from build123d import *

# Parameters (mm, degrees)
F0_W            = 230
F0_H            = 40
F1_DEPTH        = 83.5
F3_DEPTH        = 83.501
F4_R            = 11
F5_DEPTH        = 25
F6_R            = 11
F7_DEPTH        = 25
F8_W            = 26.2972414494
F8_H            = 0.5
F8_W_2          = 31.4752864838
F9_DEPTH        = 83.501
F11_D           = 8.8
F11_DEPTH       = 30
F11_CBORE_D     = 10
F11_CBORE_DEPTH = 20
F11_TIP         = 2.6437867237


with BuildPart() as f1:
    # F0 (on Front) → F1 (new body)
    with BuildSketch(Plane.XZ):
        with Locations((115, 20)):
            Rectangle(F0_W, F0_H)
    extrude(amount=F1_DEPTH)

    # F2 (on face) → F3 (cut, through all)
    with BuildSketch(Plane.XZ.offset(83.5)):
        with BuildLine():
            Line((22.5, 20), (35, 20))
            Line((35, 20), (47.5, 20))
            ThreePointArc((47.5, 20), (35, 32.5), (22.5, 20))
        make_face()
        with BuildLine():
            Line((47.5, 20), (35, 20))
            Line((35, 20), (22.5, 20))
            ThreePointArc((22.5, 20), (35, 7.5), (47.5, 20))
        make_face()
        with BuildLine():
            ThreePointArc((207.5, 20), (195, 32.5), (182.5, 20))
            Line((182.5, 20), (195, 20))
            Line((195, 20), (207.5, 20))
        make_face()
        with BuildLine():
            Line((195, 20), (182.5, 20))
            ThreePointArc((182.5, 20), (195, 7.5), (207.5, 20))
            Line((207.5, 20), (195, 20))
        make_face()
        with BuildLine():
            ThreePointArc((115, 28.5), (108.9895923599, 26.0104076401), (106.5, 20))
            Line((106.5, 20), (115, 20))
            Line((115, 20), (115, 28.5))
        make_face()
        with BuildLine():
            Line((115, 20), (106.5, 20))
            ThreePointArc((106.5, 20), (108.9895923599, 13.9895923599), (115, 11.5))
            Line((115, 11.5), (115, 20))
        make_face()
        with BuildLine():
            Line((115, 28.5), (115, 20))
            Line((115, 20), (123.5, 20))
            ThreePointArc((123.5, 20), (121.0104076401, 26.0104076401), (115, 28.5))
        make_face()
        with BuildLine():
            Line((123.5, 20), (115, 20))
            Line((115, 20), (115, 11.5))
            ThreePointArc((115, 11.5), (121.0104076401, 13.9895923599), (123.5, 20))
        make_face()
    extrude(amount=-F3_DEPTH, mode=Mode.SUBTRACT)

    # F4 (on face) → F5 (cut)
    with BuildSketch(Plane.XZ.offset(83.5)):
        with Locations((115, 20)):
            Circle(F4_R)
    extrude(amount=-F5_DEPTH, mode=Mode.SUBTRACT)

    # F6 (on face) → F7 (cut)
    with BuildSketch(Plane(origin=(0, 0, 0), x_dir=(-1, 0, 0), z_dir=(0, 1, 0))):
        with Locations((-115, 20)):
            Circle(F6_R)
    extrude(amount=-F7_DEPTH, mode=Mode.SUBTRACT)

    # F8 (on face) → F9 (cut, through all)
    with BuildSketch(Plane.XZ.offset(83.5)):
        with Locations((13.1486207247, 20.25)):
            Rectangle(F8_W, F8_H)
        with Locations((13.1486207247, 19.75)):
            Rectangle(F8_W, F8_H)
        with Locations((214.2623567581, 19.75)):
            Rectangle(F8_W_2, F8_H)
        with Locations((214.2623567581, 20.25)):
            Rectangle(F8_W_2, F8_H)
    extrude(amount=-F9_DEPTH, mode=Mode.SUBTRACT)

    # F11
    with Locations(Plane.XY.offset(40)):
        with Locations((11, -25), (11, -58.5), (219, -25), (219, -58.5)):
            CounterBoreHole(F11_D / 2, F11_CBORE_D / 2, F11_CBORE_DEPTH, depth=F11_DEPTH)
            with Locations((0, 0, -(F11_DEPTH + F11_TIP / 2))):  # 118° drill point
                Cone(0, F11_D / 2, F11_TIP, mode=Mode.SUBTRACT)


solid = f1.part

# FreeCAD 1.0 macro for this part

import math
import FreeCAD as App
import Part
import Sketcher

V = App.Vector
Q = App.Units.Quantity

doc = App.newDocument("Part")
body = doc.addObject("PartDesign::Body", "Body")

# Sketch on XZ plane
sketch1 = body.newObject("Sketcher::SketchObject", "Sketch")
sketch1.AttachmentSupport = (doc.getObject("XZ_Plane"), [""])
sketch1.MapMode = "FlatFace"
sketch1.addGeometry(Part.LineSegment(V(0, 40, 0), V(0, 0, 0)), False)
sketch1.addGeometry(Part.LineSegment(V(0, 0, 0), V(230, 0, 0)), False)
sketch1.addGeometry(Part.LineSegment(V(230, 0, 0), V(230, 40, 0)), False)
sketch1.addGeometry(Part.LineSegment(V(230, 40, 0), V(0, 40, 0)), False)
sketch1.addConstraint(Sketcher.Constraint("Coincident", 0, 2, 1, 1))
sketch1.addConstraint(Sketcher.Constraint("Coincident", 1, 2, 2, 1))
sketch1.addConstraint(Sketcher.Constraint("Coincident", 2, 2, 3, 1))
sketch1.addConstraint(Sketcher.Constraint("Coincident", 3, 2, 0, 1))
sketch1.addConstraint(Sketcher.Constraint("Vertical", 0))
sketch1.addConstraint(Sketcher.Constraint("Horizontal", 1))
sketch1.addConstraint(Sketcher.Constraint("Vertical", 2))
sketch1.addConstraint(Sketcher.Constraint("Horizontal", 3))
sketch1.addConstraint(Sketcher.Constraint("Coincident", 0, 2, -1, 1))
sketch1.addConstraint(Sketcher.Constraint("DistanceX", 1, 1, 1, 2, Q("230 mm")))
sketch1.addConstraint(Sketcher.Constraint("DistanceY", 0, 2, 0, 1, Q("40 mm")))
pad1 = body.newObject("PartDesign::Pad", "Pad")
pad1.Profile = sketch1
pad1.Length = 83.5

# Sketch on XZ plane
sketch2 = body.newObject("Sketcher::SketchObject", "Sketch001")
sketch2.AttachmentSupport = (doc.getObject("XZ_Plane"), [""])
sketch2.MapMode = "FlatFace"
sketch2.AttachmentOffset = App.Placement(V(0, 0, 83.5), App.Rotation())
sketch2.addGeometry(Part.Circle(V(35, 20, 0), V(0, 0, 1), 12), False)
sketch2.addGeometry(Part.Circle(V(195, 20, 0), V(0, 0, 1), 12), False)
sketch2.addGeometry(Part.ArcOfCircle(Part.Circle(V(115, 20, 0), V(0, 0, 1), 8), math.radians(90), math.radians(180)), False)
sketch2.addGeometry(Part.ArcOfCircle(Part.Circle(V(115, 20, 0), V(0, 0, 1), 8), math.radians(180), math.radians(270)), False)
sketch2.addGeometry(Part.ArcOfCircle(Part.Circle(V(115, 20, 0), V(0, 0, 1), 8), math.radians(-90), math.radians(0)), False)
sketch2.addGeometry(Part.ArcOfCircle(Part.Circle(V(115, 20, 0), V(0, 0, 1), 8), math.radians(0), math.radians(90)), False)
sketch2.addConstraint(Sketcher.Constraint("Tangent", 2, 2, 3, 1))
sketch2.addConstraint(Sketcher.Constraint("Tangent", 3, 2, 4, 1))
sketch2.addConstraint(Sketcher.Constraint("Tangent", 4, 2, 5, 1))
sketch2.addConstraint(Sketcher.Constraint("Tangent", 5, 2, 2, 1))
sketch2.addConstraint(Sketcher.Constraint("Equal", 0, 1))
sketch2.addConstraint(Sketcher.Constraint("Equal", 2, 3))
sketch2.addConstraint(Sketcher.Constraint("Horizontal", 0, 3, 1, 3))
sketch2.addConstraint(Sketcher.Constraint("Horizontal", 1, 3, 2, 3))
sketch2.addConstraint(Sketcher.Constraint("Horizontal", 5, 3, 2, 2))
sketch2.addConstraint(Sketcher.Constraint("Horizontal", 2, 2, 4, 2))
sketch2.addConstraint(Sketcher.Constraint("Vertical", 5, 3, 3, 2))
sketch2.addConstraint(Sketcher.Constraint("Vertical", 3, 2, 5, 2))
sketch2.addConstraint(Sketcher.Constraint("Diameter", 0, Q("25 mm")))
sketch2.addConstraint(Sketcher.Constraint("Radius", 2, Q("8.5 mm")))
sketch2.addConstraint(Sketcher.Constraint("DistanceX", -1, 1, 0, 3, Q("35 mm")))
sketch2.addConstraint(Sketcher.Constraint("DistanceY", -1, 1, 0, 3, Q("20 mm")))
sketch2.addConstraint(Sketcher.Constraint("DistanceX", -1, 1, 1, 3, Q("195 mm")))
sketch2.addConstraint(Sketcher.Constraint("DistanceX", -1, 1, 2, 3, Q("115 mm")))
pocket1 = body.newObject("PartDesign::Pocket", "Pocket")
pocket1.Profile = sketch2
pocket1.Type = "ThroughAll"

# Sketch on XZ plane
sketch3 = body.newObject("Sketcher::SketchObject", "Sketch002")
sketch3.AttachmentSupport = (doc.getObject("XZ_Plane"), [""])
sketch3.MapMode = "FlatFace"
sketch3.AttachmentOffset = App.Placement(V(0, 0, 83.5), App.Rotation())
sketch3.addGeometry(Part.Circle(V(115, 20, 0), V(0, 0, 1), 11), False)
sketch3.addConstraint(Sketcher.Constraint("Diameter", 0, Q("22 mm")))
sketch3.addConstraint(Sketcher.Constraint("DistanceX", -1, 1, 0, 3, Q("115 mm")))
sketch3.addConstraint(Sketcher.Constraint("DistanceY", -1, 1, 0, 3, Q("20 mm")))
pocket2 = body.newObject("PartDesign::Pocket", "Pocket001")
pocket2.Profile = sketch3
pocket2.Length = 25

# Sketch on XZ plane
sketch4 = body.newObject("Sketcher::SketchObject", "Sketch003")
sketch4.AttachmentSupport = (doc.getObject("XZ_Plane"), [""])
sketch4.MapMode = "FlatFace"
sketch4.addGeometry(Part.Circle(V(115, 20, 0), V(0, 0, 1), 11), False)
sketch4.addConstraint(Sketcher.Constraint("Diameter", 0, Q("22 mm")))
sketch4.addConstraint(Sketcher.Constraint("DistanceX", -1, 1, 0, 3, Q("115 mm")))
sketch4.addConstraint(Sketcher.Constraint("DistanceY", -1, 1, 0, 3, Q("20 mm")))
pocket3 = body.newObject("PartDesign::Pocket", "Pocket002")
pocket3.Profile = sketch4
pocket3.Length = 25
pocket3.Reversed = True

# Sketch on XZ plane
sketch5 = body.newObject("Sketcher::SketchObject", "Sketch004")
sketch5.AttachmentSupport = (doc.getObject("XZ_Plane"), [""])
sketch5.MapMode = "FlatFace"
sketch5.AttachmentOffset = App.Placement(V(0, 0, 83.5), App.Rotation())
sketch5.addGeometry(Part.LineSegment(V(0, 20.5, 0), V(0, 19.5, 0)), False)
sketch5.addGeometry(Part.LineSegment(V(0, 19.5, 0), V(26.3, 19.5, 0)), False)
sketch5.addGeometry(Part.LineSegment(V(26.3, 19.5, 0), V(26.3, 20.5, 0)), False)
sketch5.addGeometry(Part.LineSegment(V(26.3, 20.5, 0), V(0, 20.5, 0)), False)
sketch5.addGeometry(Part.LineSegment(V(198.5, 19.5, 0), V(230, 19.5, 0)), False)
sketch5.addGeometry(Part.LineSegment(V(230, 19.5, 0), V(230, 20.5, 0)), False)
sketch5.addGeometry(Part.LineSegment(V(230, 20.5, 0), V(198.5, 20.5, 0)), False)
sketch5.addGeometry(Part.LineSegment(V(198.5, 20.5, 0), V(198.5, 19.5, 0)), False)
sketch5.addConstraint(Sketcher.Constraint("Coincident", 0, 2, 1, 1))
sketch5.addConstraint(Sketcher.Constraint("Coincident", 1, 2, 2, 1))
sketch5.addConstraint(Sketcher.Constraint("Coincident", 2, 2, 3, 1))
sketch5.addConstraint(Sketcher.Constraint("Coincident", 3, 2, 0, 1))
sketch5.addConstraint(Sketcher.Constraint("Coincident", 4, 2, 5, 1))
sketch5.addConstraint(Sketcher.Constraint("Coincident", 5, 2, 6, 1))
sketch5.addConstraint(Sketcher.Constraint("Coincident", 6, 2, 7, 1))
sketch5.addConstraint(Sketcher.Constraint("Coincident", 7, 2, 4, 1))
sketch5.addConstraint(Sketcher.Constraint("Vertical", 0))
sketch5.addConstraint(Sketcher.Constraint("Horizontal", 1))
sketch5.addConstraint(Sketcher.Constraint("Vertical", 2))
sketch5.addConstraint(Sketcher.Constraint("Horizontal", 3))
sketch5.addConstraint(Sketcher.Constraint("Horizontal", 4))
sketch5.addConstraint(Sketcher.Constraint("Vertical", 5))
sketch5.addConstraint(Sketcher.Constraint("Horizontal", 6))
sketch5.addConstraint(Sketcher.Constraint("Vertical", 7))
sketch5.addConstraint(Sketcher.Constraint("PointOnObject", 0, 2, -2))
sketch5.addConstraint(Sketcher.Constraint("Horizontal", 1, 2, 4, 2))
sketch5.addConstraint(Sketcher.Constraint("Horizontal", 3, 2, 5, 2))
sketch5.addConstraint(Sketcher.Constraint("DistanceY", 0, 2, 0, 1, Q("1 mm")))
sketch5.addConstraint(Sketcher.Constraint("DistanceX", -1, 1, 4, 2, Q("230 mm")))
sketch5.addConstraint(Sketcher.Constraint("DistanceY", -1, 1, 0, 2, Q("19.5 mm")))
sketch5.addConstraint(Sketcher.Constraint("DistanceX", 1, 1, 1, 2, Q("26.297241 mm")))
sketch5.addConstraint(Sketcher.Constraint("DistanceX", 4, 1, 4, 2, Q("31.475286 mm")))
pocket4 = body.newObject("PartDesign::Pocket", "Pocket003")
pocket4.Profile = sketch5
pocket4.Type = "ThroughAll"

# Sketch on XY plane
sketch6 = body.newObject("Sketcher::SketchObject", "Sketch005")
sketch6.AttachmentSupport = (doc.getObject("XY_Plane"), [""])
sketch6.MapMode = "FlatFace"
sketch6.AttachmentOffset = App.Placement(V(0, 0, 40), App.Rotation())
sketch6.addGeometry(Part.Circle(V(11, -25, 0), V(0, 0, 1), 4.4), False)
sketch6.addGeometry(Part.Circle(V(11, -58.5, 0), V(0, 0, 1), 4.4), False)
sketch6.addGeometry(Part.Circle(V(219, -25, 0), V(0, 0, 1), 4.4), False)
sketch6.addGeometry(Part.Circle(V(219, -58.5, 0), V(0, 0, 1), 4.4), False)
sketch6.addConstraint(Sketcher.Constraint("Equal", 0, 1))
sketch6.addConstraint(Sketcher.Constraint("Equal", 1, 2))
sketch6.addConstraint(Sketcher.Constraint("Equal", 2, 3))
sketch6.addConstraint(Sketcher.Constraint("Horizontal", 0, 3, 2, 3))
sketch6.addConstraint(Sketcher.Constraint("Horizontal", 1, 3, 3, 3))
sketch6.addConstraint(Sketcher.Constraint("Vertical", 0, 3, 1, 3))
sketch6.addConstraint(Sketcher.Constraint("Vertical", 2, 3, 3, 3))
sketch6.addConstraint(Sketcher.Constraint("Diameter", 0, Q("8.8 mm")))
sketch6.addConstraint(Sketcher.Constraint("DistanceX", -1, 1, 0, 3, Q("11 mm")))
sketch6.addConstraint(Sketcher.Constraint("DistanceY", 0, 3, -1, 1, Q("25 mm")))
sketch6.addConstraint(Sketcher.Constraint("DistanceX", -1, 1, 2, 3, Q("219 mm")))
sketch6.addConstraint(Sketcher.Constraint("DistanceY", 1, 3, -1, 1, Q("58.5 mm")))
doc.recompute()
hole = body.newObject("PartDesign::Hole", "Hole")
hole.Profile = sketch6
hole.ThreadType = "None"
hole.Diameter = 8.8
hole.DepthType = "Dimension"
hole.Depth = 30
hole.DrillPoint = "Angled"
hole.DrillPointAngle = 118
hole.HoleCutType = "Counterbore"
hole.HoleCutDiameter = 10
hole.HoleCutDepth = 20

doc.recompute()
